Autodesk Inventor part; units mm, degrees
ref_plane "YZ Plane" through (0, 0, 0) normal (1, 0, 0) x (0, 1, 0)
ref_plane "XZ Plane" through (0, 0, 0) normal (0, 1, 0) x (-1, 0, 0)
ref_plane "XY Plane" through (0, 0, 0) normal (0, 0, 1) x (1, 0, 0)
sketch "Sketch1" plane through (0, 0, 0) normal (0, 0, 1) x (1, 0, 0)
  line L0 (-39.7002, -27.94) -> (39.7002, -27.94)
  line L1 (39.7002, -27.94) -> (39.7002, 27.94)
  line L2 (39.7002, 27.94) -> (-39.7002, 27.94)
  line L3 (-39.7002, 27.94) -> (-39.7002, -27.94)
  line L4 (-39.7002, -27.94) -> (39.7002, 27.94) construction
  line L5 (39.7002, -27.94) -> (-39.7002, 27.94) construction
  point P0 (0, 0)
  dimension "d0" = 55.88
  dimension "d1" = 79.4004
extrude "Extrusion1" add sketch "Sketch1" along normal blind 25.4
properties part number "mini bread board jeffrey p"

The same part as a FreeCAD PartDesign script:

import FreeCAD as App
import Part
import Sketcher
from FreeCAD import Vector
Q = App.Units.Quantity


def add_polygon(sketch, points):
    """Adds a closed chain of lines whose ends are joined by coincident constraints."""
    first, n = sketch.GeometryCount, len(points)
    for a, b in zip(points, points[1:] + points[:1]):
        sketch.addGeometry(Part.LineSegment(App.Vector(*a, 0), App.Vector(*b, 0)), False)
    for i in range(n):
        sketch.addConstraint(Sketcher.Constraint("Coincident", first + i, 2, first + (i + 1) % n, 1))

doc = App.newDocument("Part")
body = doc.addObject("PartDesign::Body", "Body")

sketch1 = body.newObject("Sketcher::SketchObject", "Sketch")
sketch1.AttachmentSupport = (doc.getObject("XY_Plane"), [""])
sketch1.MapMode = "FlatFace"
add_polygon(sketch1, [(-40, 28), (-40, -28), (40, -28), (40, 28)])
sketch1.addConstraint([
    Sketcher.Constraint("Vertical", 0),
    Sketcher.Constraint("Horizontal", 1),
    Sketcher.Constraint("Vertical", 2),
    Sketcher.Constraint("Horizontal", 3),
    Sketcher.Constraint("Symmetric", 0, 2, 2, 2, -1, 1),
    Sketcher.Constraint("DistanceY", 0, 2, 0, 1, Q("2.2 in")),
    Sketcher.Constraint("DistanceX", 1, 1, 1, 2, Q("3.126 in")),
])
pad1 = body.newObject("PartDesign::Pad", "Pad")
pad1.Profile = sketch1
pad1.Length = Q("1 in")

doc.recompute()
